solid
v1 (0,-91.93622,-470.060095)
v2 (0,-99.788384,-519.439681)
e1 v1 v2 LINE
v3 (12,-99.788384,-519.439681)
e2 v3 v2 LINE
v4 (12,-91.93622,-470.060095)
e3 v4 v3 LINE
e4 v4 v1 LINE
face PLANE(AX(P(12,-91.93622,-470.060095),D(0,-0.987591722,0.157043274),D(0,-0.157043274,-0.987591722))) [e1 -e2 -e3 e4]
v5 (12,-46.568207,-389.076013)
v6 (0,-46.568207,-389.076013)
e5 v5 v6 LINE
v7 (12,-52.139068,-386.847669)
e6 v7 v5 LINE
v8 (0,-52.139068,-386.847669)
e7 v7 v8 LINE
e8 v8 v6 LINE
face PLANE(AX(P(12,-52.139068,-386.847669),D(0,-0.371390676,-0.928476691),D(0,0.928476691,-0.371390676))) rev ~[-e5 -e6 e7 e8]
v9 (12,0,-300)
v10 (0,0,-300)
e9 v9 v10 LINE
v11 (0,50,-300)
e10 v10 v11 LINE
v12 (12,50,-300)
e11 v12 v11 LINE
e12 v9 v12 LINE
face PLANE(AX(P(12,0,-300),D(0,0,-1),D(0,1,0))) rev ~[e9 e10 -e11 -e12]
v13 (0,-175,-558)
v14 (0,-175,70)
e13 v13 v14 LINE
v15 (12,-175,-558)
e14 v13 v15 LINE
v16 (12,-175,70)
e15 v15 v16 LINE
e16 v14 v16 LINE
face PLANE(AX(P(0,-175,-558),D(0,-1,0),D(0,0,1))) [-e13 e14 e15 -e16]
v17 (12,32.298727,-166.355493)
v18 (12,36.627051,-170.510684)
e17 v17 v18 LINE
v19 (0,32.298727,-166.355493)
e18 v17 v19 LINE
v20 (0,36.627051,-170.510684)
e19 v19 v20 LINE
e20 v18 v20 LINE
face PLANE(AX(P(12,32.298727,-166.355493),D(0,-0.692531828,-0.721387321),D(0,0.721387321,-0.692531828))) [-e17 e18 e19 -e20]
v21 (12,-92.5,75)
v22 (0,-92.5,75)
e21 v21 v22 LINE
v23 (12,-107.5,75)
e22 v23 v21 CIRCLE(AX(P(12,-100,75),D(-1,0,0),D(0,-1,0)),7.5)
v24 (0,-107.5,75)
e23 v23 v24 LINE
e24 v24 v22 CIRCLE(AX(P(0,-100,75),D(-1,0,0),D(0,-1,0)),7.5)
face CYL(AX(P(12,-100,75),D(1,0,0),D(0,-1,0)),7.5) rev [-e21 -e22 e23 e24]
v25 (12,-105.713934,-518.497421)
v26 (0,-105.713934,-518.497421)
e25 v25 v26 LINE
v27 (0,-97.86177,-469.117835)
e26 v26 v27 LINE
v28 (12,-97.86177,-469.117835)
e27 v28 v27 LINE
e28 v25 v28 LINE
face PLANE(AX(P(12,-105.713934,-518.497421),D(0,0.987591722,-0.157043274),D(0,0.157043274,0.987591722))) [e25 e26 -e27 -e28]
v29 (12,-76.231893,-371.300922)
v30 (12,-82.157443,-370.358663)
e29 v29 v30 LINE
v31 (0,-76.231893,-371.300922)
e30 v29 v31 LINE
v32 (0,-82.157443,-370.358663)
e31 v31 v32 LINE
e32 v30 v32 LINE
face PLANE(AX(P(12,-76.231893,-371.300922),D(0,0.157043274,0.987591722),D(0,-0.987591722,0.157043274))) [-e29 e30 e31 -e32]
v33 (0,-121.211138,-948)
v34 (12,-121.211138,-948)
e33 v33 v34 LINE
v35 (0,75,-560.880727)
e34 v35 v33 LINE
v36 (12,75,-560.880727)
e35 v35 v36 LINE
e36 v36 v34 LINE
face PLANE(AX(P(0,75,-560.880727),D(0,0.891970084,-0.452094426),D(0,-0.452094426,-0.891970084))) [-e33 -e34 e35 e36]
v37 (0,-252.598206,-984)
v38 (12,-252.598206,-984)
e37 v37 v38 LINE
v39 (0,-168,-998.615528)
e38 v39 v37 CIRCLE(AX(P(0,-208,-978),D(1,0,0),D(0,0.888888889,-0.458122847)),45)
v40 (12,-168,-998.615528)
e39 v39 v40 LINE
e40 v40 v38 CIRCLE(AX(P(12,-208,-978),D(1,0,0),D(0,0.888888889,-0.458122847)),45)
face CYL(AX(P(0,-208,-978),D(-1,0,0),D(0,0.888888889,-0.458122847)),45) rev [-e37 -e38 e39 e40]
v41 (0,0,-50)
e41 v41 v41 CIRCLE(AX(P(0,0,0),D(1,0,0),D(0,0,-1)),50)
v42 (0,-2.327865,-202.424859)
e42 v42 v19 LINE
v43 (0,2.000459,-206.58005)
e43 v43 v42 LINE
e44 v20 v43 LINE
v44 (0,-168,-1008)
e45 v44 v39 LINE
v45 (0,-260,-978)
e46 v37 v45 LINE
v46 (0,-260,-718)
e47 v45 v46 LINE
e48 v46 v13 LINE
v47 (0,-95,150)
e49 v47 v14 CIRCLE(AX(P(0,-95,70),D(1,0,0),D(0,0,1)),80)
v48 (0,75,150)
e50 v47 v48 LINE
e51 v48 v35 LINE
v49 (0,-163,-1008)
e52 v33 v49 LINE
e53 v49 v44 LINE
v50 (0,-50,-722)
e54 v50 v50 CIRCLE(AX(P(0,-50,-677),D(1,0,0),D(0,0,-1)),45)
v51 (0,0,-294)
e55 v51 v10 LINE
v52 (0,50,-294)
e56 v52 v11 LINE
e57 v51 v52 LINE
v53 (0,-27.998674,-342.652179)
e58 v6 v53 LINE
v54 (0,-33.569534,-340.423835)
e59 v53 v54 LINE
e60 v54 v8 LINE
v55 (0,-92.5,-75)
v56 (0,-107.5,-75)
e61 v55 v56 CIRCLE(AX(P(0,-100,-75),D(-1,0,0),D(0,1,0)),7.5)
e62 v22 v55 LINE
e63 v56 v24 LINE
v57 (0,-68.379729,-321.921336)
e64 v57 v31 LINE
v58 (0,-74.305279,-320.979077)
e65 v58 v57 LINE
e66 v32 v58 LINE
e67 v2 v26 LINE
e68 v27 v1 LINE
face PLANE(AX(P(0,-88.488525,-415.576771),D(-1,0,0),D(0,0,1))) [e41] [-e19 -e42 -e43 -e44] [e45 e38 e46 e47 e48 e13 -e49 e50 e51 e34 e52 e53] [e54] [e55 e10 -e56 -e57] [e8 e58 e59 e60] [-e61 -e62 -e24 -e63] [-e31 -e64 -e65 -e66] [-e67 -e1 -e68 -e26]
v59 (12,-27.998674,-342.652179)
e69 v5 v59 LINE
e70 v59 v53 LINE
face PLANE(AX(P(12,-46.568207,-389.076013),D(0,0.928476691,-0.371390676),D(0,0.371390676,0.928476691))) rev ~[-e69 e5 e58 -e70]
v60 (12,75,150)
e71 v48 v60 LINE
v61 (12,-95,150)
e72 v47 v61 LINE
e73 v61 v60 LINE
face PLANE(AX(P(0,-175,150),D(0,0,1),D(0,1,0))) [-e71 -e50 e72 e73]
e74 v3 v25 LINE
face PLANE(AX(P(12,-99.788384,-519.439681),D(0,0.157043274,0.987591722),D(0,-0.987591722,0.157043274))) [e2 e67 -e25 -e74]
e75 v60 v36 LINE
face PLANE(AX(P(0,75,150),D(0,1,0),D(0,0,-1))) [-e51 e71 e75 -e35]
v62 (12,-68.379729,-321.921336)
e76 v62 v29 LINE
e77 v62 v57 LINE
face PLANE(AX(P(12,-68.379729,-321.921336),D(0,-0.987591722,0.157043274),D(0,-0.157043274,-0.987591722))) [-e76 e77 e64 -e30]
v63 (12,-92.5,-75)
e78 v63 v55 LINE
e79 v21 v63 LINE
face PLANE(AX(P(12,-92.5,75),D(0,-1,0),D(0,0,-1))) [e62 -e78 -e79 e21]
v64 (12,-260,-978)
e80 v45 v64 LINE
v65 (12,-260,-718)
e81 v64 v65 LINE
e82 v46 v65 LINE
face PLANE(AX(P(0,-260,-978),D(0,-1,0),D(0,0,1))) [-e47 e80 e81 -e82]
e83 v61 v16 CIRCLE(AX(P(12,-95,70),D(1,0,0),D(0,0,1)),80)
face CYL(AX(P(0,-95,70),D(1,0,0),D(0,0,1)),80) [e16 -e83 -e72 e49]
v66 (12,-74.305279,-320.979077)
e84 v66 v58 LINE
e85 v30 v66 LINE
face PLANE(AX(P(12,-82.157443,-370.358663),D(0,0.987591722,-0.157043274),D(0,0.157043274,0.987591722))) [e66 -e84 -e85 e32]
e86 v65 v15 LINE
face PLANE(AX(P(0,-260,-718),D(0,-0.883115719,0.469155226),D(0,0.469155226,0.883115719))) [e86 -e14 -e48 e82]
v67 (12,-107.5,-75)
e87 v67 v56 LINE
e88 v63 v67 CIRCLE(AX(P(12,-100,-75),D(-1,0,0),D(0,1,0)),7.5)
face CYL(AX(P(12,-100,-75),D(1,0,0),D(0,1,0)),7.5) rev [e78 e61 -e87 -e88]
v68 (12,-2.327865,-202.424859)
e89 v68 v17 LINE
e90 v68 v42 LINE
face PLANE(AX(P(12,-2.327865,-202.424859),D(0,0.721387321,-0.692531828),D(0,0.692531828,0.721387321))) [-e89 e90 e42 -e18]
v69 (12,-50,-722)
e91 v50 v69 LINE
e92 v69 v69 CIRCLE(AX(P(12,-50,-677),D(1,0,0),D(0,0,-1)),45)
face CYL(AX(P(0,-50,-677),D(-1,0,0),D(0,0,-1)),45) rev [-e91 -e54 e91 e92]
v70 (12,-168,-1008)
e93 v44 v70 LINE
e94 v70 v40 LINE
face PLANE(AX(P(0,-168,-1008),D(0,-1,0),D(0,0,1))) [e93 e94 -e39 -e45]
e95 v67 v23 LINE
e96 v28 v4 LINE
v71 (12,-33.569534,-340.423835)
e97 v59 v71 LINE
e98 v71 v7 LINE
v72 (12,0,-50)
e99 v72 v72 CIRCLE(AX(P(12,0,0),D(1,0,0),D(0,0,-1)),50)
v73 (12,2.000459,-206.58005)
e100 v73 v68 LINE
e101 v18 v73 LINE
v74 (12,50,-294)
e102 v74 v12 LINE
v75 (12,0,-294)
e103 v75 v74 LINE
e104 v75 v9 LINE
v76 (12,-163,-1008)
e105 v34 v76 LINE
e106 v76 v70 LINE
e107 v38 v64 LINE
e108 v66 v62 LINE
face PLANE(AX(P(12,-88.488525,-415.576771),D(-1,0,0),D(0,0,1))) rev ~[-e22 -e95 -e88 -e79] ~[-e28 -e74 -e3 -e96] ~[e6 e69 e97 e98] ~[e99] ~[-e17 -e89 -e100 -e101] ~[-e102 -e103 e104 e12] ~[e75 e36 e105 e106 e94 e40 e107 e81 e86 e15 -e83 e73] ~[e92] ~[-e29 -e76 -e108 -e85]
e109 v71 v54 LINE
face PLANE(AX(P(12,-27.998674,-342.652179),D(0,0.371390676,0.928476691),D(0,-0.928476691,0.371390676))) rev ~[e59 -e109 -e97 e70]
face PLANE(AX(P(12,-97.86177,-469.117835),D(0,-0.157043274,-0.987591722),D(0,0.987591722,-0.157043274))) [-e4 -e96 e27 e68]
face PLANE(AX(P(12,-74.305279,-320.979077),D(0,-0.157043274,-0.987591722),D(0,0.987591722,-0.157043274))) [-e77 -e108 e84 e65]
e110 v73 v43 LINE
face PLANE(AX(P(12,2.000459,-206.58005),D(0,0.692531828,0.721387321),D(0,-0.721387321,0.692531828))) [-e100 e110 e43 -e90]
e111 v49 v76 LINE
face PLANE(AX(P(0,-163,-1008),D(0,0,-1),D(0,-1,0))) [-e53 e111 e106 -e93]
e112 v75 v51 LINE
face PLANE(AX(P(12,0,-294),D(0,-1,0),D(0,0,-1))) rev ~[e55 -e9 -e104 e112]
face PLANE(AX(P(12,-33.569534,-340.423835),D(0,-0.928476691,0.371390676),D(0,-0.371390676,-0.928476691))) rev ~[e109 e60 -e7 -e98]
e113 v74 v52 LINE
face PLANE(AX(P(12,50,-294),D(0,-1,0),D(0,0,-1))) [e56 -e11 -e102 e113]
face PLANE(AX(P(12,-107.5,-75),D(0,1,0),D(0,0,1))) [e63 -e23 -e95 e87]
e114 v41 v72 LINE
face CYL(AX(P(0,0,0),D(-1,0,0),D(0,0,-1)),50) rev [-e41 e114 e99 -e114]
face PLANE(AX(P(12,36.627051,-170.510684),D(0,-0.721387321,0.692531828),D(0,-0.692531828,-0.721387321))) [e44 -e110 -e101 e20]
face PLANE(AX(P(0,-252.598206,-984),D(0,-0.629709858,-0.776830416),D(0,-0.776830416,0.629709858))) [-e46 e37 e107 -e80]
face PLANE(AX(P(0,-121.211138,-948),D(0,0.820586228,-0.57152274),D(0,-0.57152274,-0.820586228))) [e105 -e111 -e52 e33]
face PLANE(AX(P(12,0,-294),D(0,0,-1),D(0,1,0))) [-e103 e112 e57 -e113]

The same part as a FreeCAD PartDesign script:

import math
import FreeCAD as App
import Part
import Sketcher
Q = App.Units.Quantity


def edges_at(feature, points):
    """Names of the edges that pass closest to the given points."""
    edges = feature.Shape.Edges
    near = lambda p: min(range(len(edges)), key=lambda i: edges[i].distToShape(Part.Vertex(*p))[0])
    return sorted({f"Edge{near(p) + 1}" for p in points})

doc = App.newDocument("Part")
params = doc.addObject("Spreadsheet::Sheet", "Params")
for row, (alias, value) in enumerate([
    ("sketch1_diameter", "90 mm"),
    ("sketch1_diameter2", "100 mm"),
    ("sketch1_width", "250 mm"),
    ("sketch1_width2", "5 mm"),
    ("sketch1_height", "708 mm"),
    ("pad1_length", "12 mm"),
    ("fillet_radius", "80 mm"),
    ("sketch2_radius", "7.5 mm"),
    ("sketch2_height", "150 mm"),
    ("pocket1_length", "12 mm"),
    ("sketch3_width", "50 mm"),
    ("sketch3_height", "6 mm"),
    ("sketch3_length", "50 mm"),
    ("sketch3_length2", "6 mm"),
    ("pocket2_length", "12 mm"),
], start=1):
    params.set(f"A{row}", alias)
    params.set(f"B{row}", "=" + value)
    params.setAlias(f"B{row}", alias)

body = doc.addObject("PartDesign::Body", "Body")

# Sketch on YZ plane
sketch1 = body.newObject("Sketcher::SketchObject", "Sketch")
sketch1.AttachmentSupport = (doc.getObject("YZ_Plane"), [""])
sketch1.MapMode = "FlatFace"
sketch1.addGeometry([
    Part.LineSegment(App.Vector(75, -561, 0), App.Vector(75, 150, 0)),  # 0
    Part.LineSegment(App.Vector(75, 150, 0), App.Vector(-175, 150, 0)),  # 1
    Part.LineSegment(App.Vector(-175, 150, 0), App.Vector(-175, -558, 0)),  # 2
    Part.LineSegment(App.Vector(-175, -558, 0), App.Vector(-260, -718, 0)),  # 3
    Part.LineSegment(App.Vector(-260, -718, 0), App.Vector(-260, -978, 0)),  # 4
    Part.LineSegment(App.Vector(-260, -978, 0), App.Vector(-253, -984, 0)),  # 5
    Part.ArcOfCircle(Part.Circle(App.Vector(-208, -978, 0), App.Vector(0, 0, 1), 45), math.radians(-27), math.radians(188)),  # 6
    Part.LineSegment(App.Vector(-168, -999, 0), App.Vector(-168, -1008, 0)),  # 7
    Part.LineSegment(App.Vector(-168, -1008, 0), App.Vector(-163, -1008, 0)),  # 8
    Part.LineSegment(App.Vector(-163, -1008, 0), App.Vector(-121, -948, 0)),  # 9
    Part.LineSegment(App.Vector(-121, -948, 0), App.Vector(75, -561, 0)),  # 10
    Part.Circle(App.Vector(-50, -677, 0), App.Vector(0, 0, 1), 45),  # 11
    Part.Circle(App.Vector(0, 0, 0), App.Vector(0, 0, 1), 50),  # 12
], False)
sketch1.addConstraint([
    Sketcher.Constraint("Coincident", 0, 2, 1, 1),
    Sketcher.Constraint("Coincident", 1, 2, 2, 1),
    Sketcher.Constraint("Coincident", 2, 2, 3, 1),
    Sketcher.Constraint("Coincident", 3, 2, 4, 1),
    Sketcher.Constraint("Coincident", 4, 2, 5, 1),
    Sketcher.Constraint("Coincident", 5, 2, 6, 2),
    Sketcher.Constraint("Coincident", 6, 1, 7, 1),
    Sketcher.Constraint("Coincident", 7, 2, 8, 1),
    Sketcher.Constraint("Coincident", 8, 2, 9, 1),
    Sketcher.Constraint("Coincident", 9, 2, 10, 1),
    Sketcher.Constraint("Coincident", 10, 2, 0, 1),
    Sketcher.Constraint("Vertical", 0),
    Sketcher.Constraint("Horizontal", 1),
    Sketcher.Constraint("Vertical", 2),
    Sketcher.Constraint("Vertical", 4),
    Sketcher.Constraint("Vertical", 7),
    Sketcher.Constraint("Horizontal", 8),
    Sketcher.Constraint("Coincident", 12, 3, -1, 1),
    Sketcher.Constraint("Equal", 6, 11),
    Sketcher.Constraint("Horizontal", 6, 3, 4, 2),
    Sketcher.Constraint("Diameter", 11, Q("90 mm")),
    Sketcher.Constraint("Diameter", 12, Q("100 mm")),
    Sketcher.Constraint("DistanceX", 1, 2, 1, 1, Q("250 mm")),
    Sketcher.Constraint("DistanceX", 8, 1, 8, 2, Q("5 mm")),
    Sketcher.Constraint("DistanceY", 2, 2, 2, 1, Q("708 mm")),
    Sketcher.Constraint("DistanceY", 4, 2, 4, 1, Q("260 mm")),
    Sketcher.Constraint("DistanceX", 6, 3, -1, 1, Q("208 mm")),
    Sketcher.Constraint("DistanceY", 6, 3, -1, 1, Q("978 mm")),
    Sketcher.Constraint("DistanceX", 11, 3, -1, 1, Q("50 mm")),
    Sketcher.Constraint("DistanceY", 11, 3, -1, 1, Q("677 mm")),
    Sketcher.Constraint("DistanceX", -1, 1, 0, 2, Q("75 mm")),
    Sketcher.Constraint("DistanceY", -1, 1, 0, 2, Q("150 mm")),
    Sketcher.Constraint("DistanceX", 3, 2, -1, 1, Q("260 mm")),
    Sketcher.Constraint("DistanceY", 5, 2, -1, 1, Q("984 mm")),
    Sketcher.Constraint("DistanceX", 6, 1, -1, 1, Q("168 mm")),
    Sketcher.Constraint("DistanceY", 7, 2, -1, 1, Q("1008 mm")),
    Sketcher.Constraint("DistanceY", 9, 2, -1, 1, Q("948 mm")),
    Sketcher.Constraint("DistanceY", 6, 1, 10, 2, Q("437.734801 mm")),
    Sketcher.Constraint("Distance", 9, Q("73.118458 mm")),
])
sketch1.setExpression("Constraints[20]", "Params.sketch1_diameter")
sketch1.setExpression("Constraints[21]", "Params.sketch1_diameter2")
sketch1.setExpression("Constraints[22]", "Params.sketch1_width")
sketch1.setExpression("Constraints[23]", "Params.sketch1_width2")
sketch1.setExpression("Constraints[24]", "Params.sketch1_height")
pad1 = body.newObject("PartDesign::Pad", "Pad")
pad1.Profile = sketch1
pad1.setExpression("Length", "Params.pad1_length")
doc.recompute()

fillet = body.newObject("PartDesign::Fillet", "Fillet")
fillet.Base = (pad1, edges_at(pad1, [(6, -175, 150)]))
fillet.setExpression("Radius", "Params.fillet_radius")

# Sketch on YZ plane
sketch2 = body.newObject("Sketcher::SketchObject", "Sketch001")
sketch2.AttachmentSupport = (doc.getObject("YZ_Plane"), [""])
sketch2.MapMode = "FlatFace"
sketch2.AttachmentOffset = App.Placement(App.Vector(0, 0, 12), App.Rotation())
sketch2.addGeometry([
    Part.LineSegment(App.Vector(-92, -75, 0), App.Vector(-92, 75, 0)),
    Part.ArcOfCircle(Part.Circle(App.Vector(-100, 75, 0), App.Vector(0, 0, 1), 8), math.radians(0), math.radians(180)),
    Part.LineSegment(App.Vector(-108, 75, 0), App.Vector(-108, -75, 0)),
    Part.ArcOfCircle(Part.Circle(App.Vector(-100, -75, 0), App.Vector(0, 0, 1), 8), math.radians(180), math.radians(360)),
], False)
sketch2.addConstraint([
    Sketcher.Constraint("Tangent", 0, 2, 1, 1),
    Sketcher.Constraint("Tangent", 1, 2, 2, 1),
    Sketcher.Constraint("Tangent", 2, 2, 3, 1),
    Sketcher.Constraint("Tangent", 3, 2, 0, 1),
    Sketcher.Constraint("Vertical", 0),
    Sketcher.Constraint("Vertical", 2),
    Sketcher.Constraint("Radius", 1, Q("7.5 mm")),
    Sketcher.Constraint("DistanceY", 0, 1, 0, 2, Q("150 mm")),
    Sketcher.Constraint("DistanceX", 1, 3, -1, 1, Q("100 mm")),
    Sketcher.Constraint("DistanceY", -1, 1, 1, 3, Q("75 mm")),
])
sketch2.setExpression("Constraints[6]", "Params.sketch2_radius")
sketch2.setExpression("Constraints[7]", "Params.sketch2_height")
pocket1 = body.newObject("PartDesign::Pocket", "Pocket")
pocket1.Profile = sketch2
pocket1.setExpression("Length", "Params.pocket1_length")

# Sketch on YZ plane
sketch3 = body.newObject("Sketcher::SketchObject", "Sketch002")
sketch3.AttachmentSupport = (doc.getObject("YZ_Plane"), [""])
sketch3.MapMode = "FlatFace"
sketch3.AttachmentOffset = App.Placement(App.Vector(0, 0, 12), App.Rotation())
sketch3.addGeometry([
    Part.LineSegment(App.Vector(2, -207, 0), App.Vector(37, -171, 0)),  # 0
    Part.LineSegment(App.Vector(37, -171, 0), App.Vector(32, -166, 0)),  # 1
    Part.LineSegment(App.Vector(32, -166, 0), App.Vector(-2, -202, 0)),  # 2
    Part.LineSegment(App.Vector(-2, -202, 0), App.Vector(2, -207, 0)),  # 3
    Part.LineSegment(App.Vector(50, -294, 0), App.Vector(0, -294, 0)),  # 4
    Part.LineSegment(App.Vector(0, -294, 0), App.Vector(0, -300, 0)),  # 5
    Part.LineSegment(App.Vector(0, -300, 0), App.Vector(50, -300, 0)),  # 6
    Part.LineSegment(App.Vector(50, -300, 0), App.Vector(50, -294, 0)),  # 7
    Part.LineSegment(App.Vector(-34, -340, 0), App.Vector(-52, -387, 0)),  # 8
    Part.LineSegment(App.Vector(-52, -387, 0), App.Vector(-47, -389, 0)),  # 9
    Part.LineSegment(App.Vector(-47, -389, 0), App.Vector(-28, -343, 0)),  # 10
    Part.LineSegment(App.Vector(-28, -343, 0), App.Vector(-34, -340, 0)),  # 11
    Part.LineSegment(App.Vector(-100, -519, 0), App.Vector(-92, -470, 0)),  # 12
    Part.LineSegment(App.Vector(-92, -470, 0), App.Vector(-98, -469, 0)),  # 13
    Part.LineSegment(App.Vector(-98, -469, 0), App.Vector(-106, -518, 0)),  # 14
    Part.LineSegment(App.Vector(-106, -518, 0), App.Vector(-100, -519, 0)),  # 15
    Part.LineSegment(App.Vector(-76, -371, 0), App.Vector(-68, -322, 0)),  # 16
    Part.LineSegment(App.Vector(-68, -322, 0), App.Vector(-74, -321, 0)),  # 17
    Part.LineSegment(App.Vector(-74, -321, 0), App.Vector(-82, -370, 0)),  # 18
    Part.LineSegment(App.Vector(-82, -370, 0), App.Vector(-76, -371, 0)),  # 19
], False)
sketch3.addConstraint([
    Sketcher.Constraint("Coincident", 0, 2, 1, 1),
    Sketcher.Constraint("Coincident", 1, 2, 2, 1),
    Sketcher.Constraint("Coincident", 2, 2, 3, 1),
    Sketcher.Constraint("Coincident", 3, 2, 0, 1),
    Sketcher.Constraint("Coincident", 4, 2, 5, 1),
    Sketcher.Constraint("Coincident", 5, 2, 6, 1),
    Sketcher.Constraint("Coincident", 6, 2, 7, 1),
    Sketcher.Constraint("Coincident", 7, 2, 4, 1),
    Sketcher.Constraint("Coincident", 8, 2, 9, 1),
    Sketcher.Constraint("Coincident", 9, 2, 10, 1),
    Sketcher.Constraint("Coincident", 10, 2, 11, 1),
    Sketcher.Constraint("Coincident", 11, 2, 8, 1),
    Sketcher.Constraint("Coincident", 12, 2, 13, 1),
    Sketcher.Constraint("Coincident", 13, 2, 14, 1),
    Sketcher.Constraint("Coincident", 14, 2, 15, 1),
    Sketcher.Constraint("Coincident", 15, 2, 12, 1),
    Sketcher.Constraint("Coincident", 16, 2, 17, 1),
    Sketcher.Constraint("Coincident", 17, 2, 18, 1),
    Sketcher.Constraint("Coincident", 18, 2, 19, 1),
    Sketcher.Constraint("Coincident", 19, 2, 16, 1),
    Sketcher.Constraint("Horizontal", 4),
    Sketcher.Constraint("Vertical", 5),
    Sketcher.Constraint("Horizontal", 6),
    Sketcher.Constraint("Vertical", 7),
    Sketcher.Constraint("PointOnObject", 4, 2, -2),
    Sketcher.Constraint("Perpendicular", 0, 1),
    Sketcher.Constraint("Perpendicular", 1, 2),
    Sketcher.Constraint("Perpendicular", 2, 3),
    Sketcher.Constraint("Perpendicular", 8, 9),
    Sketcher.Constraint("Perpendicular", 9, 10),
    Sketcher.Constraint("Perpendicular", 10, 11),
    Sketcher.Constraint("Perpendicular", 12, 13),
    Sketcher.Constraint("Perpendicular", 13, 14),
    Sketcher.Constraint("Perpendicular", 14, 15),
    Sketcher.Constraint("Perpendicular", 15, 16),
    Sketcher.Constraint("Perpendicular", 16, 17),
    Sketcher.Constraint("Perpendicular", 17, 18),
    Sketcher.Constraint("Perpendicular", 18, 19),
    Sketcher.Constraint("Equal", 2, 8),
    Sketcher.Constraint("Equal", 3, 9),
    Sketcher.Constraint("Equal", 10, 12),
    Sketcher.Constraint("Equal", 11, 13),
    Sketcher.Constraint("Equal", 14, 16),
    Sketcher.Constraint("Equal", 15, 17),
    Sketcher.Constraint("DistanceX", 4, 2, 4, 1, Q("50 mm")),
    Sketcher.Constraint("DistanceY", 5, 2, 5, 1, Q("6 mm")),
    Sketcher.Constraint("Distance", 0, Q("50 mm")),
    Sketcher.Constraint("Distance", 1, Q("6 mm")),
    Sketcher.Constraint("DistanceY", 4, 2, -1, 1, Q("294 mm")),
    Sketcher.Constraint("DistanceY", 13, 2, 11, 2, Q("128.694001 mm")),
    Sketcher.Constraint("DistanceX", 14, 2, 11, 2, Q("72.1444 mm")),
    Sketcher.Constraint("DistanceY", 11, 2, 16, 2, Q("18.502498 mm")),
    Sketcher.Constraint("DistanceY", 10, 2, 17, 2, Q("21.673102 mm")),
    Sketcher.Constraint("DistanceX", -1, 1, 0, 2, Q("36.627051 mm")),
    Sketcher.Constraint("DistanceY", 2, 2, -1, 1, Q("202.424859 mm")),
    Sketcher.Constraint("DistanceX", -1, 1, 3, 2, Q("2.000459 mm")),
    Sketcher.Constraint("DistanceY", 8, 2, -1, 1, Q("386.847669 mm")),
    Sketcher.Constraint("DistanceY", 10, 2, -1, 1, Q("342.652179 mm")),
    Sketcher.Constraint("DistanceX", 12, 2, -1, 1, Q("91.93622 mm")),
    Sketcher.Constraint("DistanceX", 16, 2, -1, 1, Q("68.379729 mm")),
])
sketch3.setExpression("Constraints[44]", "Params.sketch3_width")
sketch3.setExpression("Constraints[45]", "Params.sketch3_height")
sketch3.setExpression("Constraints[46]", "Params.sketch3_length")
sketch3.setExpression("Constraints[47]", "Params.sketch3_length2")
pocket2 = body.newObject("PartDesign::Pocket", "Pocket001")
pocket2.Profile = sketch3
pocket2.setExpression("Length", "Params.pocket2_length")

doc.recompute()
